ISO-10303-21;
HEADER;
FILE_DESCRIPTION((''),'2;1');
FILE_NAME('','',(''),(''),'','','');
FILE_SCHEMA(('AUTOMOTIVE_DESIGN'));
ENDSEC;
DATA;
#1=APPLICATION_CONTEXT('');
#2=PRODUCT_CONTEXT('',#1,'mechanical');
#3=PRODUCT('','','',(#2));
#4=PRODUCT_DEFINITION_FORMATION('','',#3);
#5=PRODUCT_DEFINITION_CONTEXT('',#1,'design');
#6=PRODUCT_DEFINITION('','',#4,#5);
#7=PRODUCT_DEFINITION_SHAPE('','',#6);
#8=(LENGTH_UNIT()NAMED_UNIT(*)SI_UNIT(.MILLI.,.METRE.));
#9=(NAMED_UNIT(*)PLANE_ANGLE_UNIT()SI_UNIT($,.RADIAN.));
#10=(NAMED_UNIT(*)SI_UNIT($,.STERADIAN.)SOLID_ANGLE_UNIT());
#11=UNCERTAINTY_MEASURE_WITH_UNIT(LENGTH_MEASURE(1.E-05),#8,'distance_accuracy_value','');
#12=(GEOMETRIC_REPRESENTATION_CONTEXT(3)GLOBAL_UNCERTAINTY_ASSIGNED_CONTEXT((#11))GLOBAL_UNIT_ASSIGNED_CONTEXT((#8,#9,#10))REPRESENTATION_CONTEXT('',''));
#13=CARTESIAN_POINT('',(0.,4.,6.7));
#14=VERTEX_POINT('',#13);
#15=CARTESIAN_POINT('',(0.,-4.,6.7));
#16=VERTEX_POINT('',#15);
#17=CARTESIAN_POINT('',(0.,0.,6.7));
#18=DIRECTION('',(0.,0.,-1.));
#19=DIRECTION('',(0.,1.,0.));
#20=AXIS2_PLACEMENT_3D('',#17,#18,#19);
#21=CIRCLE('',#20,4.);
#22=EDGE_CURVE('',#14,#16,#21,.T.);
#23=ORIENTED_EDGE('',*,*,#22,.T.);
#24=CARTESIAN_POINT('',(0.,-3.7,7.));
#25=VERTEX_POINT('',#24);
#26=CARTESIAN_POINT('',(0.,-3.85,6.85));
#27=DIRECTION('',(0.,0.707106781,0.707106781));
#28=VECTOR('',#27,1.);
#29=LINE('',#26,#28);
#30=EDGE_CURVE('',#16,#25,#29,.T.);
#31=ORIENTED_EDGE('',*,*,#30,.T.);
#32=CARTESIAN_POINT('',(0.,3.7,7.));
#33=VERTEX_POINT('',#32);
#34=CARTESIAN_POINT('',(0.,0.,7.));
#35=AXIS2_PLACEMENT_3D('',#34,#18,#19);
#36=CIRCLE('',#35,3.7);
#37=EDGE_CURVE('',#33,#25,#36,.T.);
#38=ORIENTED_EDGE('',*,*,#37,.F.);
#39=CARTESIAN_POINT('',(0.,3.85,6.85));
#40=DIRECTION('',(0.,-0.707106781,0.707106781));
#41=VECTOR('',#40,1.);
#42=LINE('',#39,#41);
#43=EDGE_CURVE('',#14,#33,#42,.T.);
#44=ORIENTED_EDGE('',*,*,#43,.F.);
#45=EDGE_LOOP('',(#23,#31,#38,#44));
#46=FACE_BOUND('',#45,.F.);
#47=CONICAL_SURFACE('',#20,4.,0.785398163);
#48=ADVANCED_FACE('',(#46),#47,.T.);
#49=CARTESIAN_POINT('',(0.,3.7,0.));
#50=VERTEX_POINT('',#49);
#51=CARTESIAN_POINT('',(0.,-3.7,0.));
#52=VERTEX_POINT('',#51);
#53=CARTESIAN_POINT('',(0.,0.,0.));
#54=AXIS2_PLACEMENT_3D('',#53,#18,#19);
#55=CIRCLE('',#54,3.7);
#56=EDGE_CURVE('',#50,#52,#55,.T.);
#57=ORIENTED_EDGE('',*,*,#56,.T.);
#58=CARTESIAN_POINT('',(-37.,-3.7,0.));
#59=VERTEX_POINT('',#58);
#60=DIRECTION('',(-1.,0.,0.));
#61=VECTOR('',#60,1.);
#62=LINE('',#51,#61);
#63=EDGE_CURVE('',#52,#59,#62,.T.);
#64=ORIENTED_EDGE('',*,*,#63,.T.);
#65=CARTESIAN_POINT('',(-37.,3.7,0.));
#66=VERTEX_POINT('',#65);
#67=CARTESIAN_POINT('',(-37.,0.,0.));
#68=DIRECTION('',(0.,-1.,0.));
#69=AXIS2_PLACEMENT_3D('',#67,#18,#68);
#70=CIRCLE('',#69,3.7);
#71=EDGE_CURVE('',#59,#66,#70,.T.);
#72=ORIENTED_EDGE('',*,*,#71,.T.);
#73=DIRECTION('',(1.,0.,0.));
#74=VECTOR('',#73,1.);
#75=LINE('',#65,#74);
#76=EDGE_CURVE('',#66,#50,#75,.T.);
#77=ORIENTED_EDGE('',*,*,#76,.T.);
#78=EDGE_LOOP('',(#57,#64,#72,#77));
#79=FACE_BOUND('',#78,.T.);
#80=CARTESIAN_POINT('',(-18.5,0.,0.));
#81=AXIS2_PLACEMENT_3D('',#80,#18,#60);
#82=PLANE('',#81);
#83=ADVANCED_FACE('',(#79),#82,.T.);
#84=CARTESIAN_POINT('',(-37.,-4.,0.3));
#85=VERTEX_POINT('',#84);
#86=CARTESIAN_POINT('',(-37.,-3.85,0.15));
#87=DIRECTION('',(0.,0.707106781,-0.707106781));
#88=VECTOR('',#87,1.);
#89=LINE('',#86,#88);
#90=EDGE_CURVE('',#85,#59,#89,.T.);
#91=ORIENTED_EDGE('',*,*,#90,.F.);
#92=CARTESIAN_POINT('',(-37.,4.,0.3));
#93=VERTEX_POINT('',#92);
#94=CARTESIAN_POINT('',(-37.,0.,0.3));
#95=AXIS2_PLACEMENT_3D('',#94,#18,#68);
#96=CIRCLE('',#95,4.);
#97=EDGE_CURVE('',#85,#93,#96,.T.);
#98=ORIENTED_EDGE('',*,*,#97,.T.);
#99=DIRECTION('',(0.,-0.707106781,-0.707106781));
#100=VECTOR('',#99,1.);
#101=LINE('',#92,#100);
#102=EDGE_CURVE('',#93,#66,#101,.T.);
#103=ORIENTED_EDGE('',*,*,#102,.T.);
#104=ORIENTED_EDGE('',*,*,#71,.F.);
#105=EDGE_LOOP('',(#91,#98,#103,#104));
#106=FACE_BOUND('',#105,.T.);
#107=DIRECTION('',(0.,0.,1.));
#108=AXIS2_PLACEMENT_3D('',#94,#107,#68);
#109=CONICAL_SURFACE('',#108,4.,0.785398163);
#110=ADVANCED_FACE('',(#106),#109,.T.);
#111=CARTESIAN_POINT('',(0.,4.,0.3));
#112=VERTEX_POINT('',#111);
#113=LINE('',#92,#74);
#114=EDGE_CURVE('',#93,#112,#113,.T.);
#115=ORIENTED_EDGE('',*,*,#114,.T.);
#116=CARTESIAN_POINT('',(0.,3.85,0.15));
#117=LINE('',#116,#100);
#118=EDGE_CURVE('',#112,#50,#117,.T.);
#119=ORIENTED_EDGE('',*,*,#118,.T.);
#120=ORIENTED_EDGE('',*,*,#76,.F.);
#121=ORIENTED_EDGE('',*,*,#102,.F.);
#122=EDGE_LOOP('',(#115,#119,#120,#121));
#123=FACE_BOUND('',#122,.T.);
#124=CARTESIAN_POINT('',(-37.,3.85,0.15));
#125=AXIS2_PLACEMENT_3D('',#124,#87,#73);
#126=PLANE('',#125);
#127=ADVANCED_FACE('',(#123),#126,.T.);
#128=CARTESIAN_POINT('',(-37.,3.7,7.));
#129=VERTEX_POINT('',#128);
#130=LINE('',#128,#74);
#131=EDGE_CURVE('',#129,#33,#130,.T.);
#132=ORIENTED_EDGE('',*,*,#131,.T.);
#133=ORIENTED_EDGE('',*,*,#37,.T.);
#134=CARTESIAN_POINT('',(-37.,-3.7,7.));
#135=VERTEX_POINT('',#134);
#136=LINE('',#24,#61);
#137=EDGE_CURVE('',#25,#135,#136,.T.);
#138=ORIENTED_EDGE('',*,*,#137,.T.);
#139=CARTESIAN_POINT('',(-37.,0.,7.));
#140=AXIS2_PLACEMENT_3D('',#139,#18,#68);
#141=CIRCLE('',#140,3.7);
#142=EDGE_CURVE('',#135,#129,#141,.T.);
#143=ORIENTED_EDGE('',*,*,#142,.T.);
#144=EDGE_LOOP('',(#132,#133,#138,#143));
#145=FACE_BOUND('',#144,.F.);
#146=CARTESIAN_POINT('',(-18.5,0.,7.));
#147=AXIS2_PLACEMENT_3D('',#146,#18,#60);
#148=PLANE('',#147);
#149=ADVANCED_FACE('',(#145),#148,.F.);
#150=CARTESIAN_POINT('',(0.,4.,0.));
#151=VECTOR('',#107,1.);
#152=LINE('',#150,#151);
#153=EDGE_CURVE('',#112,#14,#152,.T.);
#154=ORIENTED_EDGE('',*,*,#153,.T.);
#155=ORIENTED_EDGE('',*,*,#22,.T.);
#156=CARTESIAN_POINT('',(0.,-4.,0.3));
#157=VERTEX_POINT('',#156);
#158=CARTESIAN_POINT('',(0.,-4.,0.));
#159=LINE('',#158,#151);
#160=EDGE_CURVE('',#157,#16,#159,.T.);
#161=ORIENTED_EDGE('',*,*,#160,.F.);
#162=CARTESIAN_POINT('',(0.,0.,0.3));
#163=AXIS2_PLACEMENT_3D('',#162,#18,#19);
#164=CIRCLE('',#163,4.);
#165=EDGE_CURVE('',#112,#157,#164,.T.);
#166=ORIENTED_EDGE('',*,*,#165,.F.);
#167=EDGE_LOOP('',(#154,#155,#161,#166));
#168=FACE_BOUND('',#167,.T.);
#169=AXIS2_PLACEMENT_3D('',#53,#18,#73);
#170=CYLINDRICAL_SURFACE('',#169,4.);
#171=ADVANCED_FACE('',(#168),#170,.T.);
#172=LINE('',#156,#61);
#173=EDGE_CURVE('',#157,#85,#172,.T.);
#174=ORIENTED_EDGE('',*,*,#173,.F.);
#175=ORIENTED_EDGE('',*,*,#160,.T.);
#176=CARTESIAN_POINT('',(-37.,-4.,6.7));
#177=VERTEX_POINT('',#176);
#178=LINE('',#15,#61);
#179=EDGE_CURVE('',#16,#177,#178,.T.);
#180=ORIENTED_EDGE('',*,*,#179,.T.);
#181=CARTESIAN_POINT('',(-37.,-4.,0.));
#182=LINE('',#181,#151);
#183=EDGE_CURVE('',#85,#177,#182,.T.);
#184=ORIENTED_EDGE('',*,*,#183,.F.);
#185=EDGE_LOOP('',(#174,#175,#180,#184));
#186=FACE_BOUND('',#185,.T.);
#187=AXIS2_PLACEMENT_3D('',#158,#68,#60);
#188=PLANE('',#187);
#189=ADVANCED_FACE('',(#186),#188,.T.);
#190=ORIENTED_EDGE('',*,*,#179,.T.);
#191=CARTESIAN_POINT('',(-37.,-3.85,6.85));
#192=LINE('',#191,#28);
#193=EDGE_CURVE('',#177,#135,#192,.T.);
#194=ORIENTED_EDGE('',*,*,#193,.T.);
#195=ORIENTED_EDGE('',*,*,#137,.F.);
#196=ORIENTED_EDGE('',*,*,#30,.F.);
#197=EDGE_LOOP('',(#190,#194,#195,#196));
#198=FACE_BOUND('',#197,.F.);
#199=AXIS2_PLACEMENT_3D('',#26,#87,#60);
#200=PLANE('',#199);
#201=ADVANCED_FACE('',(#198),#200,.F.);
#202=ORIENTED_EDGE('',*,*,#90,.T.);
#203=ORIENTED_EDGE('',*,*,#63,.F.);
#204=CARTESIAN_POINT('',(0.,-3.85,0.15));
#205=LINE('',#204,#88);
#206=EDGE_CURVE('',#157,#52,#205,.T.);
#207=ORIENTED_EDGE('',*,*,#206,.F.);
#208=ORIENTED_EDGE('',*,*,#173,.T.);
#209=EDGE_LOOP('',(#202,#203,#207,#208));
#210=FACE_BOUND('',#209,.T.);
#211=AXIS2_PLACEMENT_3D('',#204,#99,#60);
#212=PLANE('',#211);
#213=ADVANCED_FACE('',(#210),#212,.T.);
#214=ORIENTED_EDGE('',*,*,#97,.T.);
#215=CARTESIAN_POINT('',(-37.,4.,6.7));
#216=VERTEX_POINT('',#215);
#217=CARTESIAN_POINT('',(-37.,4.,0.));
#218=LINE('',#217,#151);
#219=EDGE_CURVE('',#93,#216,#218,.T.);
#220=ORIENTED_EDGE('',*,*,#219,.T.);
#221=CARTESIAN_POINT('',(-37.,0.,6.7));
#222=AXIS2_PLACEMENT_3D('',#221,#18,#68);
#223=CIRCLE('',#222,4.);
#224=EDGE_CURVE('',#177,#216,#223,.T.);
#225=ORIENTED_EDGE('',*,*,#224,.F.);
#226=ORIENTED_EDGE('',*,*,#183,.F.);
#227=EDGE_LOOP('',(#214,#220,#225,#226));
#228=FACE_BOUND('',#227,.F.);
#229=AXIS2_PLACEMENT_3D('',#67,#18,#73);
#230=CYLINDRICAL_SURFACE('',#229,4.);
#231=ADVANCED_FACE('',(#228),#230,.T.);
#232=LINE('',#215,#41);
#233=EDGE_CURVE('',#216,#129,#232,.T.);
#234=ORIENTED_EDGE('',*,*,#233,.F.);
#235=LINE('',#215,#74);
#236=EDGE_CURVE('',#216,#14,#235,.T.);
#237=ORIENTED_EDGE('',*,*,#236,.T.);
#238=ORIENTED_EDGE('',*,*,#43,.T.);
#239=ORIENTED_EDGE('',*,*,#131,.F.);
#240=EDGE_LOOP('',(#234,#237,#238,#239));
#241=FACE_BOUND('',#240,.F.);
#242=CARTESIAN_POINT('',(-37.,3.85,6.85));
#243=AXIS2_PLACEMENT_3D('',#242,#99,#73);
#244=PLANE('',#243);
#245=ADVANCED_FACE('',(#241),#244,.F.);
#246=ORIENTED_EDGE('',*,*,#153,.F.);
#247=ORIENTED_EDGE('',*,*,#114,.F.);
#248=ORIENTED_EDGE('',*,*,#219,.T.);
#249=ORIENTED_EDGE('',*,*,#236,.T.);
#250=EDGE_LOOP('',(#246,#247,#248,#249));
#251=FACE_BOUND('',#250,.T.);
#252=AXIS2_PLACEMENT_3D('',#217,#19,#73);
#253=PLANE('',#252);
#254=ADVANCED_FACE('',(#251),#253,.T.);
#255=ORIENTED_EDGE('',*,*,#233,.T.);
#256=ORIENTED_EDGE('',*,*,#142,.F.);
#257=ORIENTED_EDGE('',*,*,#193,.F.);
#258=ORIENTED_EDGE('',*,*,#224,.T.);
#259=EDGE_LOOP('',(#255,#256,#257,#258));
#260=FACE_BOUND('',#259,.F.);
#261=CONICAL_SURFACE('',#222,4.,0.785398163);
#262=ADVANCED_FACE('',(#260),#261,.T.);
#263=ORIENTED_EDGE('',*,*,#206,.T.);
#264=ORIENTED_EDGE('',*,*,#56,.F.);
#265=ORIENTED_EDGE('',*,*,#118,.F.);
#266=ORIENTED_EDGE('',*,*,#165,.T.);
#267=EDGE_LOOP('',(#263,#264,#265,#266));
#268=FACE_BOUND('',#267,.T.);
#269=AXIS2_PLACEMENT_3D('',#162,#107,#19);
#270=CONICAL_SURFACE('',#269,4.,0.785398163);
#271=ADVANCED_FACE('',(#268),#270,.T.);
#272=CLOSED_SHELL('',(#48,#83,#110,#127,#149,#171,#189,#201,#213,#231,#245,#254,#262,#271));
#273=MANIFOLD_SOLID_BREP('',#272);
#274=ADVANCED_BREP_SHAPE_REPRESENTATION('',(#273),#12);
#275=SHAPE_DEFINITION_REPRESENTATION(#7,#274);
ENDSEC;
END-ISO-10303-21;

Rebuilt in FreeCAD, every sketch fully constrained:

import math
import FreeCAD as App
import Part
import Sketcher

V = App.Vector


def edges_at(feature, points):
    """Names of the edges that pass closest to the given points."""
    edges = feature.Shape.Edges
    near = lambda p: min(range(len(edges)), key=lambda i: edges[i].distToShape(Part.Vertex(*p))[0])
    return sorted({f"Edge{near(p) + 1}" for p in points})

doc = App.newDocument("Part")
body = doc.addObject("PartDesign::Body", "Body")

# Sketch on XY plane
sketch1 = body.newObject("Sketcher::SketchObject", "Sketch")
sketch1.AttachmentSupport = (doc.getObject("XY_Plane"), [""])
sketch1.MapMode = "FlatFace"
sketch1.addGeometry([
    Part.LineSegment(V(0, 4, 0), V(-37, 4, 0)),
    Part.ArcOfCircle(Part.Circle(V(-37, 0, 0), V(0, 0, 1), 4), math.radians(90), math.radians(270)),
    Part.LineSegment(V(-37, -4, 0), V(0, -4, 0)),
    Part.ArcOfCircle(Part.Circle(V(0, 0, 0), V(0, 0, 1), 4), math.radians(-90), math.radians(90)),
], False)
sketch1.addConstraint([
    Sketcher.Constraint("Tangent", 0, 2, 1, 1),
    Sketcher.Constraint("Tangent", 1, 2, 2, 1),
    Sketcher.Constraint("Tangent", 2, 2, 3, 1),
    Sketcher.Constraint("Tangent", 3, 2, 0, 1),
    Sketcher.Constraint("Horizontal", 0),
    Sketcher.Constraint("Horizontal", 2),
    Sketcher.Constraint("Coincident", 3, 3, -1, 1),
    Sketcher.Constraint("Radius", 1, 4.0),
    Sketcher.Constraint("DistanceX", 0, 2, 0, 1, 37.0),
])
pad1 = body.newObject("PartDesign::Pad", "Pad")
pad1.Profile = sketch1
pad1.Length = 7
doc.recompute()

chamfer = body.newObject("PartDesign::Chamfer", "Chamfer")
chamfer.Base = (pad1, edges_at(pad1, [
    (-18.5, -4, 7),
    (-41, 0, 7),
    (-18.5, 4, 7),
    (4, 0, 7),
    (-18.5, -4, 0),
    (-41, 0, 0),
    (-18.5, 4, 0),
    (4, 0, 0),
]))
chamfer.Size = 0.3

doc.recompute()
